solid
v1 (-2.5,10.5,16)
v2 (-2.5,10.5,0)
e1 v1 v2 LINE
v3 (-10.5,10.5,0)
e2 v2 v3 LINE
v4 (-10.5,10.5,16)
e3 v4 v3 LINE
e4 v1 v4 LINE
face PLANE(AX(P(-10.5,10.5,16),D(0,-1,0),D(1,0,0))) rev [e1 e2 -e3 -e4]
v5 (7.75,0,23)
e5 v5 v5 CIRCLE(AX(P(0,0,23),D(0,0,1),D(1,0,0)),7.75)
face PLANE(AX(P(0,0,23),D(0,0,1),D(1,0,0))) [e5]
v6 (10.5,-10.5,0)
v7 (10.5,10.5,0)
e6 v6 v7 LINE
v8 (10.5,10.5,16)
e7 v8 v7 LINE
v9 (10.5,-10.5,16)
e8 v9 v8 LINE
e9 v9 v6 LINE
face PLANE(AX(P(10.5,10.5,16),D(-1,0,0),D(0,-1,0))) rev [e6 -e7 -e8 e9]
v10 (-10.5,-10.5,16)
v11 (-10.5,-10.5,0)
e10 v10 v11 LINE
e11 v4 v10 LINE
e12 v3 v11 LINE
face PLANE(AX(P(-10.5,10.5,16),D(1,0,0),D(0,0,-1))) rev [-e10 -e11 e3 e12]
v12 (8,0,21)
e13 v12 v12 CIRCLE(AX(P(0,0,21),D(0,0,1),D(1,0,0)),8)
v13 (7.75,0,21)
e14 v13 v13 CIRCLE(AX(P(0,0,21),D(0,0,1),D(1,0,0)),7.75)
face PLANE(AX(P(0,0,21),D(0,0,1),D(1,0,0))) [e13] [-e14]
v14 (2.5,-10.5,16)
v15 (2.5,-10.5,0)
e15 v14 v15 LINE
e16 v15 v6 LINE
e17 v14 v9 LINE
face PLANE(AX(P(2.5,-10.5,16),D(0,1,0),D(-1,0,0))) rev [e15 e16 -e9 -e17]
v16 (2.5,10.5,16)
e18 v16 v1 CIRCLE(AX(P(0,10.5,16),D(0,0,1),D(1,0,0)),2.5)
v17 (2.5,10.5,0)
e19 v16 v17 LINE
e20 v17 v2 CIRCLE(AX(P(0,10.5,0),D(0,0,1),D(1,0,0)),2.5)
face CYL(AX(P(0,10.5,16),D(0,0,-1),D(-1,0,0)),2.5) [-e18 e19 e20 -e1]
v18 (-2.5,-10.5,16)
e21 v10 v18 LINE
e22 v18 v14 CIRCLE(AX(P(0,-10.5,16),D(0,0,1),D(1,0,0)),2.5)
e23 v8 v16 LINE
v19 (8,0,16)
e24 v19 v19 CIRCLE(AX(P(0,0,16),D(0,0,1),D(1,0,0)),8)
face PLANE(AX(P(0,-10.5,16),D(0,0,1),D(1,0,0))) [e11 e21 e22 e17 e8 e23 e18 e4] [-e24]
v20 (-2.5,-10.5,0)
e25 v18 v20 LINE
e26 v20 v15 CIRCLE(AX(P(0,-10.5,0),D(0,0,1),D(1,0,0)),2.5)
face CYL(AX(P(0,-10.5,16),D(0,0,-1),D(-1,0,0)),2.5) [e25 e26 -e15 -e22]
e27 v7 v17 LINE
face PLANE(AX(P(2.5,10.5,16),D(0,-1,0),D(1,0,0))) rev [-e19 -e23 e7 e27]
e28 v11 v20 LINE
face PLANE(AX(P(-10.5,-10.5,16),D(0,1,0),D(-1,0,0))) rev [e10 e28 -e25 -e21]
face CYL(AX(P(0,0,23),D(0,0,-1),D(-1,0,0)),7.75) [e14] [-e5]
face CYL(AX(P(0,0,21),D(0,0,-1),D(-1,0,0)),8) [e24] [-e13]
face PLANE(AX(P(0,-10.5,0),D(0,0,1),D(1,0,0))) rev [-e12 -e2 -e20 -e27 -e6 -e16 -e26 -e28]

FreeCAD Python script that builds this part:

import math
import FreeCAD as App
import Part
import Sketcher

doc = App.newDocument("Part")
body = doc.addObject("PartDesign::Body", "Body")

# Sketch on XY plane
sketch1 = doc.addObject("Sketcher::SketchObject", "Sketch")
body.addObject(sketch1)
sketch1.AttachmentSupport = (doc.XY_Plane, [""])
sketch1.MapMode = "FlatFace"
sketch1.addGeometry(Part.LineSegment(App.Vector(-2.5, 10.5, 0), App.Vector(-10.5, 10.5, 0)), False)
sketch1.addGeometry(Part.LineSegment(App.Vector(-10.5, 10.5, 0), App.Vector(-10.5, -10.5, 0)), False)
sketch1.addGeometry(Part.LineSegment(App.Vector(-10.5, -10.5, 0), App.Vector(-2.5, -10.5, 0)), False)
sketch1.addGeometry(Part.ArcOfCircle(Part.Circle(App.Vector(0, -10.5, 0), App.Vector(0, 0, 1), 2.5), math.radians(180), math.radians(360)), False)
sketch1.addGeometry(Part.LineSegment(App.Vector(2.5, -10.5, 0), App.Vector(10.5, -10.5, 0)), False)
sketch1.addGeometry(Part.LineSegment(App.Vector(10.5, -10.5, 0), App.Vector(10.5, 10.5, 0)), False)
sketch1.addGeometry(Part.LineSegment(App.Vector(10.5, 10.5, 0), App.Vector(2.5, 10.5, 0)), False)
sketch1.addGeometry(Part.ArcOfCircle(Part.Circle(App.Vector(0, 10.5, 0), App.Vector(0, 0, 1), 2.5), math.radians(0), math.radians(180)), False)
sketch1.addConstraint(Sketcher.Constraint("Coincident", 0, 2, 1, 1))
sketch1.addConstraint(Sketcher.Constraint("Coincident", 1, 2, 2, 1))
sketch1.addConstraint(Sketcher.Constraint("Coincident", 2, 2, 3, 1))
sketch1.addConstraint(Sketcher.Constraint("Coincident", 3, 2, 4, 1))
sketch1.addConstraint(Sketcher.Constraint("Coincident", 4, 2, 5, 1))
sketch1.addConstraint(Sketcher.Constraint("Coincident", 5, 2, 6, 1))
sketch1.addConstraint(Sketcher.Constraint("Coincident", 6, 2, 7, 1))
sketch1.addConstraint(Sketcher.Constraint("Coincident", 7, 2, 0, 1))
sketch1.addConstraint(Sketcher.Constraint("Horizontal", 0))
sketch1.addConstraint(Sketcher.Constraint("Vertical", 1))
sketch1.addConstraint(Sketcher.Constraint("Horizontal", 2))
sketch1.addConstraint(Sketcher.Constraint("Horizontal", 4))
sketch1.addConstraint(Sketcher.Constraint("Vertical", 5))
sketch1.addConstraint(Sketcher.Constraint("Horizontal", 6))
sketch1.addConstraint(Sketcher.Constraint("Equal", 3, 7))
sketch1.addConstraint(Sketcher.Constraint("Symmetric", 3, 3, 7, 3, -1, 1))
sketch1.addConstraint(Sketcher.Constraint("Symmetric", 0, 2, 4, 2, -1, 1))
sketch1.addConstraint(Sketcher.Constraint("Symmetric", 2, 2, 3, 2, -2))
sketch1.addConstraint(Sketcher.Constraint("Horizontal", 7, 3, 0, 2))
sketch1.addConstraint(Sketcher.Constraint("Horizontal", 0, 2, 5, 2))
sketch1.addConstraint(Sketcher.Constraint("Radius", 3, 2.5))
sketch1.addConstraint(Sketcher.Constraint("DistanceX", 0, 2, 0, 1, 8.0))
sketch1.addConstraint(Sketcher.Constraint("DistanceY", 1, 2, 1, 1, 21.0))
pad1 = doc.addObject("PartDesign::Pad", "Pad")
body.addObject(pad1)
pad1.Profile = sketch1
pad1.Length = 16

# Sketch on XY plane
sketch2 = doc.addObject("Sketcher::SketchObject", "Sketch001")
body.addObject(sketch2)
sketch2.AttachmentSupport = (doc.XY_Plane, [""])
sketch2.MapMode = "FlatFace"
sketch2.AttachmentOffset = App.Placement(App.Vector(0, 0, 16), App.Rotation())
sketch2.addGeometry(Part.Circle(App.Vector(0, 0, 0), App.Vector(0, 0, 1), 8), False)
sketch2.addConstraint(Sketcher.Constraint("Coincident", 0, 3, -1, 1))
sketch2.addConstraint(Sketcher.Constraint("Diameter", 0, 16.0))
pad2 = doc.addObject("PartDesign::Pad", "Pad001")
body.addObject(pad2)
pad2.Profile = sketch2
pad2.Length = 5

# Sketch on XY plane
sketch3 = doc.addObject("Sketcher::SketchObject", "Sketch002")
body.addObject(sketch3)
sketch3.AttachmentSupport = (doc.XY_Plane, [""])
sketch3.MapMode = "FlatFace"
sketch3.AttachmentOffset = App.Placement(App.Vector(0, 0, 21), App.Rotation())
sketch3.addGeometry(Part.Circle(App.Vector(0, 0, 0), App.Vector(0, 0, 1), 7.75), False)
sketch3.addConstraint(Sketcher.Constraint("Coincident", 0, 3, -1, 1))
sketch3.addConstraint(Sketcher.Constraint("Diameter", 0, 15.5))
pad3 = doc.addObject("PartDesign::Pad", "Pad002")
body.addObject(pad3)
pad3.Profile = sketch3
pad3.Length = 2

doc.recompute()
